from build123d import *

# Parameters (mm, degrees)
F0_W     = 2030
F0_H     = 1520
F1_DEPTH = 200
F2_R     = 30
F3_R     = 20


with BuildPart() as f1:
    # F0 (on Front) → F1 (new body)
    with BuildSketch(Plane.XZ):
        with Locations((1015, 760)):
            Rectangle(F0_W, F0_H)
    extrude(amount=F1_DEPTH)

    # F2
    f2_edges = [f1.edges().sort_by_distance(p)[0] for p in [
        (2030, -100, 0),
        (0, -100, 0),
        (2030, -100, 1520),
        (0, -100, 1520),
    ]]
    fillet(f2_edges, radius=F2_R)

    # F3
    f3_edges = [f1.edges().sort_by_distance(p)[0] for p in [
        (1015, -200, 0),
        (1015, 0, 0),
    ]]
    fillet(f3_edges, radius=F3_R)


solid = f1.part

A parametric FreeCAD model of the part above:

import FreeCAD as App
import Part
import Sketcher
from FreeCAD import Vector
Q = App.Units.Quantity


def edges_at(feature, points):
    """Names of the edges that pass closest to the given points."""
    edges = feature.Shape.Edges
    near = lambda p: min(range(len(edges)), key=lambda i: edges[i].distToShape(Part.Vertex(*p))[0])
    return sorted({f"Edge{near(p) + 1}" for p in points})


def add_polygon(sketch, points):
    """Adds a closed chain of lines whose ends are joined by coincident constraints."""
    first, n = sketch.GeometryCount, len(points)
    for a, b in zip(points, points[1:] + points[:1]):
        sketch.addGeometry(Part.LineSegment(App.Vector(*a, 0), App.Vector(*b, 0)), False)
    for i in range(n):
        sketch.addConstraint(Sketcher.Constraint("Coincident", first + i, 2, first + (i + 1) % n, 1))

doc = App.newDocument("Part")
params = doc.addObject("Spreadsheet::Sheet", "Params")
for row, (alias, value) in enumerate([
    ("sketch1_width", "2030 mm"),
    ("sketch1_height", "1520 mm"),
    ("pad1_length", "200 mm"),
    ("fillet_radius", "30 mm"),
    ("fillet2_radius", "20 mm"),
], start=1):
    params.set(f"A{row}", alias)
    params.set(f"B{row}", "=" + value)
    params.setAlias(f"B{row}", alias)

body = doc.addObject("PartDesign::Body", "Body")

# Sketch on XZ plane
sketch1 = doc.addObject("Sketcher::SketchObject", "Sketch")
body.addObject(sketch1)
sketch1.AttachmentSupport = (doc.XZ_Plane, [""])
sketch1.MapMode = "FlatFace"
add_polygon(sketch1, [(0, 1520), (0, 0), (2030, 0), (2030, 1520)])  # lines 0-3
sketch1.addConstraint(Sketcher.Constraint("Vertical", 0))
sketch1.addConstraint(Sketcher.Constraint("Horizontal", 1))
sketch1.addConstraint(Sketcher.Constraint("Vertical", 2))
sketch1.addConstraint(Sketcher.Constraint("Horizontal", 3))
sketch1.addConstraint(Sketcher.Constraint("Coincident", 0, 2, -1, 1))
sketch1.addConstraint(Sketcher.Constraint("DistanceX", 1, 1, 1, 2, Q("2030 mm")))
sketch1.addConstraint(Sketcher.Constraint("DistanceY", 0, 2, 0, 1, Q("1520 mm")))
sketch1.setExpression("Constraints[9]", "Params.sketch1_width")
sketch1.setExpression("Constraints[10]", "Params.sketch1_height")
pad1 = doc.addObject("PartDesign::Pad", "Pad")
body.addObject(pad1)
pad1.Profile = sketch1
pad1.setExpression("Length", "Params.pad1_length")
doc.recompute()

fillet = doc.addObject("PartDesign::Fillet", "Fillet")
body.addObject(fillet)
fillet.Base = (pad1, edges_at(pad1, [
    (2030, -100, 0),
    (0, -100, 0),
    (2030, -100, 1520),
    (0, -100, 1520),
]))
fillet.setExpression("Radius", "Params.fillet_radius")
doc.recompute()

fillet2 = doc.addObject("PartDesign::Fillet", "Fillet001")
body.addObject(fillet2)
fillet2.Base = (fillet, edges_at(fillet, [(1015, -200, 0), (1015, 0, 0)]))
fillet2.setExpression("Radius", "Params.fillet2_radius")

doc.recompute()
